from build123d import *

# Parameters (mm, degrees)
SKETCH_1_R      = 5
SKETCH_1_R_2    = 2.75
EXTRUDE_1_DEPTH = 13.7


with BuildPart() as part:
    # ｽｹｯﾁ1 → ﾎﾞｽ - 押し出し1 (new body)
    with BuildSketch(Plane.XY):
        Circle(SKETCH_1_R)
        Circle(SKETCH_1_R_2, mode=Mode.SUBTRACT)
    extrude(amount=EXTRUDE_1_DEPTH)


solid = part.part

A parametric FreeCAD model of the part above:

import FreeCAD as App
import Part
import Sketcher
Q = App.Units.Quantity

doc = App.newDocument("Part")
body = doc.addObject("PartDesign::Body", "Body")

sketch1 = body.newObject("Sketcher::SketchObject", "Sketch")
sketch1.AttachmentSupport = (doc.getObject("XY_Plane"), [""])
sketch1.MapMode = "FlatFace"
sketch1.addGeometry([
    Part.Circle(App.Vector(0, 0, 0), App.Vector(0, 0, 1), 5),
    Part.Circle(App.Vector(0, 0, 0), App.Vector(0, 0, 1), 2.8),
], False)
sketch1.addConstraint([
    Sketcher.Constraint("Coincident", 0, 3, -1, 1),
    Sketcher.Constraint("Coincident", 1, 3, -1, 1),
    Sketcher.Constraint("Diameter", 0, Q("10 mm")),
    Sketcher.Constraint("Diameter", 1, Q("5.5 mm")),
])
pad1 = body.newObject("PartDesign::Pad", "Pad")
pad1.Profile = sketch1
pad1.Length = 13.7

doc.recompute()
